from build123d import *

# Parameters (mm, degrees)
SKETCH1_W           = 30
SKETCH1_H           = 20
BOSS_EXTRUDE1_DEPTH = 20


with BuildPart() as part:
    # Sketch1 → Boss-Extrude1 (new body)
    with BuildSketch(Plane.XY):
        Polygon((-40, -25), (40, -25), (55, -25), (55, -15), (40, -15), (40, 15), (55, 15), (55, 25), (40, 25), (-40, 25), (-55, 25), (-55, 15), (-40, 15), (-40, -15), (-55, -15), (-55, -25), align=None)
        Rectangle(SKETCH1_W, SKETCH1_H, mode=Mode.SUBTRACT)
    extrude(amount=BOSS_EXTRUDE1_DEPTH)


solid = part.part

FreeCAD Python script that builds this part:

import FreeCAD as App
import Part
import Sketcher

doc = App.newDocument("Part")
params = doc.addObject("Spreadsheet::Sheet", "Params")
for row, (alias, value) in enumerate([
    ("sketch1_width", "15 mm"),
    ("sketch1_width2", "110 mm"),
    ("sketch1_width3", "30 mm"),
    ("sketch1_height", "10 mm"),
    ("sketch1_height2", "20 mm"),
    ("pad1_length", "20 mm"),
], start=1):
    params.set(f"A{row}", alias)
    params.set(f"B{row}", "=" + value)
    params.setAlias(f"B{row}", alias)

body = doc.addObject("PartDesign::Body", "Body")

sketch1 = body.newObject("Sketcher::SketchObject", "Sketch")
sketch1.AttachmentSupport = (doc.getObject("XY_Plane"), [""])
sketch1.MapMode = "FlatFace"
sketch1.addGeometry([
    Part.LineSegment(App.Vector(55, -25, 0), App.Vector(55, -15, 0)),
    Part.LineSegment(App.Vector(55, -15, 0), App.Vector(40, -15, 0)),
    Part.LineSegment(App.Vector(40, -15, 0), App.Vector(40, 15, 0)),
    Part.LineSegment(App.Vector(40, 15, 0), App.Vector(55, 15, 0)),
    Part.LineSegment(App.Vector(55, 15, 0), App.Vector(55, 25, 0)),
    Part.LineSegment(App.Vector(55, 25, 0), App.Vector(-55, 25, 0)),
    Part.LineSegment(App.Vector(-55, 25, 0), App.Vector(-55, 15, 0)),
    Part.LineSegment(App.Vector(-55, 15, 0), App.Vector(-40, 15, 0)),
    Part.LineSegment(App.Vector(-40, 15, 0), App.Vector(-40, -15, 0)),
    Part.LineSegment(App.Vector(-40, -15, 0), App.Vector(-55, -15, 0)),
    Part.LineSegment(App.Vector(-55, -15, 0), App.Vector(-55, -25, 0)),
    Part.LineSegment(App.Vector(-55, -25, 0), App.Vector(55, -25, 0)),
    Part.LineSegment(App.Vector(15, -10, 0), App.Vector(-15, -10, 0)),
    Part.LineSegment(App.Vector(-15, -10, 0), App.Vector(-15, 10, 0)),
    Part.LineSegment(App.Vector(-15, 10, 0), App.Vector(15, 10, 0)),
    Part.LineSegment(App.Vector(15, 10, 0), App.Vector(15, -10, 0)),
], False)
sketch1.addConstraint([
    Sketcher.Constraint("Coincident", 0, 2, 1, 1),
    Sketcher.Constraint("Coincident", 1, 2, 2, 1),
    Sketcher.Constraint("Coincident", 2, 2, 3, 1),
    Sketcher.Constraint("Coincident", 3, 2, 4, 1),
    Sketcher.Constraint("Coincident", 4, 2, 5, 1),
    Sketcher.Constraint("Coincident", 5, 2, 6, 1),
    Sketcher.Constraint("Coincident", 6, 2, 7, 1),
    Sketcher.Constraint("Coincident", 7, 2, 8, 1),
    Sketcher.Constraint("Coincident", 8, 2, 9, 1),
    Sketcher.Constraint("Coincident", 9, 2, 10, 1),
    Sketcher.Constraint("Coincident", 10, 2, 11, 1),
    Sketcher.Constraint("Coincident", 11, 2, 0, 1),
    Sketcher.Constraint("Coincident", 12, 2, 13, 1),
    Sketcher.Constraint("Coincident", 13, 2, 14, 1),
    Sketcher.Constraint("Coincident", 14, 2, 15, 1),
    Sketcher.Constraint("Coincident", 15, 2, 12, 1),
    Sketcher.Constraint("Vertical", 0),
    Sketcher.Constraint("Horizontal", 1),
    Sketcher.Constraint("Vertical", 2),
    Sketcher.Constraint("Horizontal", 3),
    Sketcher.Constraint("Vertical", 4),
    Sketcher.Constraint("Horizontal", 5),
    Sketcher.Constraint("Vertical", 6),
    Sketcher.Constraint("Horizontal", 7),
    Sketcher.Constraint("Vertical", 8),
    Sketcher.Constraint("Horizontal", 9),
    Sketcher.Constraint("Vertical", 10),
    Sketcher.Constraint("Horizontal", 11),
    Sketcher.Constraint("Horizontal", 12),
    Sketcher.Constraint("Vertical", 13),
    Sketcher.Constraint("Horizontal", 14),
    Sketcher.Constraint("Vertical", 15),
    Sketcher.Constraint("Symmetric", 0, 2, 6, 2, -1, 1),
    Sketcher.Constraint("Symmetric", 2, 2, 8, 2, -1, 1),
    Sketcher.Constraint("Symmetric", 4, 2, 10, 2, -1, 1),
    Sketcher.Constraint("Symmetric", 12, 2, 14, 2, -1, 1),
    Sketcher.Constraint("Symmetric", 3, 2, 6, 2, -2),
    Sketcher.Constraint("Equal", 14, 2),
    Sketcher.Constraint("DistanceX", 1, 2, 1, 1, 15.0),
    Sketcher.Constraint("DistanceX", 5, 2, 5, 1, 110.0),
    Sketcher.Constraint("DistanceX", 12, 2, 12, 1, 30.0),
    Sketcher.Constraint("DistanceY", 0, 1, 0, 2, 10.0),
    Sketcher.Constraint("DistanceY", 13, 1, 13, 2, 20.0),
])
sketch1.setExpression("Constraints[38]", "Params.sketch1_width")
sketch1.setExpression("Constraints[39]", "Params.sketch1_width2")
sketch1.setExpression("Constraints[40]", "Params.sketch1_width3")
sketch1.setExpression("Constraints[41]", "Params.sketch1_height")
sketch1.setExpression("Constraints[42]", "Params.sketch1_height2")
pad1 = body.newObject("PartDesign::Pad", "Pad")
pad1.Profile = sketch1
pad1.setExpression("Length", "Params.pad1_length")

doc.recompute()
